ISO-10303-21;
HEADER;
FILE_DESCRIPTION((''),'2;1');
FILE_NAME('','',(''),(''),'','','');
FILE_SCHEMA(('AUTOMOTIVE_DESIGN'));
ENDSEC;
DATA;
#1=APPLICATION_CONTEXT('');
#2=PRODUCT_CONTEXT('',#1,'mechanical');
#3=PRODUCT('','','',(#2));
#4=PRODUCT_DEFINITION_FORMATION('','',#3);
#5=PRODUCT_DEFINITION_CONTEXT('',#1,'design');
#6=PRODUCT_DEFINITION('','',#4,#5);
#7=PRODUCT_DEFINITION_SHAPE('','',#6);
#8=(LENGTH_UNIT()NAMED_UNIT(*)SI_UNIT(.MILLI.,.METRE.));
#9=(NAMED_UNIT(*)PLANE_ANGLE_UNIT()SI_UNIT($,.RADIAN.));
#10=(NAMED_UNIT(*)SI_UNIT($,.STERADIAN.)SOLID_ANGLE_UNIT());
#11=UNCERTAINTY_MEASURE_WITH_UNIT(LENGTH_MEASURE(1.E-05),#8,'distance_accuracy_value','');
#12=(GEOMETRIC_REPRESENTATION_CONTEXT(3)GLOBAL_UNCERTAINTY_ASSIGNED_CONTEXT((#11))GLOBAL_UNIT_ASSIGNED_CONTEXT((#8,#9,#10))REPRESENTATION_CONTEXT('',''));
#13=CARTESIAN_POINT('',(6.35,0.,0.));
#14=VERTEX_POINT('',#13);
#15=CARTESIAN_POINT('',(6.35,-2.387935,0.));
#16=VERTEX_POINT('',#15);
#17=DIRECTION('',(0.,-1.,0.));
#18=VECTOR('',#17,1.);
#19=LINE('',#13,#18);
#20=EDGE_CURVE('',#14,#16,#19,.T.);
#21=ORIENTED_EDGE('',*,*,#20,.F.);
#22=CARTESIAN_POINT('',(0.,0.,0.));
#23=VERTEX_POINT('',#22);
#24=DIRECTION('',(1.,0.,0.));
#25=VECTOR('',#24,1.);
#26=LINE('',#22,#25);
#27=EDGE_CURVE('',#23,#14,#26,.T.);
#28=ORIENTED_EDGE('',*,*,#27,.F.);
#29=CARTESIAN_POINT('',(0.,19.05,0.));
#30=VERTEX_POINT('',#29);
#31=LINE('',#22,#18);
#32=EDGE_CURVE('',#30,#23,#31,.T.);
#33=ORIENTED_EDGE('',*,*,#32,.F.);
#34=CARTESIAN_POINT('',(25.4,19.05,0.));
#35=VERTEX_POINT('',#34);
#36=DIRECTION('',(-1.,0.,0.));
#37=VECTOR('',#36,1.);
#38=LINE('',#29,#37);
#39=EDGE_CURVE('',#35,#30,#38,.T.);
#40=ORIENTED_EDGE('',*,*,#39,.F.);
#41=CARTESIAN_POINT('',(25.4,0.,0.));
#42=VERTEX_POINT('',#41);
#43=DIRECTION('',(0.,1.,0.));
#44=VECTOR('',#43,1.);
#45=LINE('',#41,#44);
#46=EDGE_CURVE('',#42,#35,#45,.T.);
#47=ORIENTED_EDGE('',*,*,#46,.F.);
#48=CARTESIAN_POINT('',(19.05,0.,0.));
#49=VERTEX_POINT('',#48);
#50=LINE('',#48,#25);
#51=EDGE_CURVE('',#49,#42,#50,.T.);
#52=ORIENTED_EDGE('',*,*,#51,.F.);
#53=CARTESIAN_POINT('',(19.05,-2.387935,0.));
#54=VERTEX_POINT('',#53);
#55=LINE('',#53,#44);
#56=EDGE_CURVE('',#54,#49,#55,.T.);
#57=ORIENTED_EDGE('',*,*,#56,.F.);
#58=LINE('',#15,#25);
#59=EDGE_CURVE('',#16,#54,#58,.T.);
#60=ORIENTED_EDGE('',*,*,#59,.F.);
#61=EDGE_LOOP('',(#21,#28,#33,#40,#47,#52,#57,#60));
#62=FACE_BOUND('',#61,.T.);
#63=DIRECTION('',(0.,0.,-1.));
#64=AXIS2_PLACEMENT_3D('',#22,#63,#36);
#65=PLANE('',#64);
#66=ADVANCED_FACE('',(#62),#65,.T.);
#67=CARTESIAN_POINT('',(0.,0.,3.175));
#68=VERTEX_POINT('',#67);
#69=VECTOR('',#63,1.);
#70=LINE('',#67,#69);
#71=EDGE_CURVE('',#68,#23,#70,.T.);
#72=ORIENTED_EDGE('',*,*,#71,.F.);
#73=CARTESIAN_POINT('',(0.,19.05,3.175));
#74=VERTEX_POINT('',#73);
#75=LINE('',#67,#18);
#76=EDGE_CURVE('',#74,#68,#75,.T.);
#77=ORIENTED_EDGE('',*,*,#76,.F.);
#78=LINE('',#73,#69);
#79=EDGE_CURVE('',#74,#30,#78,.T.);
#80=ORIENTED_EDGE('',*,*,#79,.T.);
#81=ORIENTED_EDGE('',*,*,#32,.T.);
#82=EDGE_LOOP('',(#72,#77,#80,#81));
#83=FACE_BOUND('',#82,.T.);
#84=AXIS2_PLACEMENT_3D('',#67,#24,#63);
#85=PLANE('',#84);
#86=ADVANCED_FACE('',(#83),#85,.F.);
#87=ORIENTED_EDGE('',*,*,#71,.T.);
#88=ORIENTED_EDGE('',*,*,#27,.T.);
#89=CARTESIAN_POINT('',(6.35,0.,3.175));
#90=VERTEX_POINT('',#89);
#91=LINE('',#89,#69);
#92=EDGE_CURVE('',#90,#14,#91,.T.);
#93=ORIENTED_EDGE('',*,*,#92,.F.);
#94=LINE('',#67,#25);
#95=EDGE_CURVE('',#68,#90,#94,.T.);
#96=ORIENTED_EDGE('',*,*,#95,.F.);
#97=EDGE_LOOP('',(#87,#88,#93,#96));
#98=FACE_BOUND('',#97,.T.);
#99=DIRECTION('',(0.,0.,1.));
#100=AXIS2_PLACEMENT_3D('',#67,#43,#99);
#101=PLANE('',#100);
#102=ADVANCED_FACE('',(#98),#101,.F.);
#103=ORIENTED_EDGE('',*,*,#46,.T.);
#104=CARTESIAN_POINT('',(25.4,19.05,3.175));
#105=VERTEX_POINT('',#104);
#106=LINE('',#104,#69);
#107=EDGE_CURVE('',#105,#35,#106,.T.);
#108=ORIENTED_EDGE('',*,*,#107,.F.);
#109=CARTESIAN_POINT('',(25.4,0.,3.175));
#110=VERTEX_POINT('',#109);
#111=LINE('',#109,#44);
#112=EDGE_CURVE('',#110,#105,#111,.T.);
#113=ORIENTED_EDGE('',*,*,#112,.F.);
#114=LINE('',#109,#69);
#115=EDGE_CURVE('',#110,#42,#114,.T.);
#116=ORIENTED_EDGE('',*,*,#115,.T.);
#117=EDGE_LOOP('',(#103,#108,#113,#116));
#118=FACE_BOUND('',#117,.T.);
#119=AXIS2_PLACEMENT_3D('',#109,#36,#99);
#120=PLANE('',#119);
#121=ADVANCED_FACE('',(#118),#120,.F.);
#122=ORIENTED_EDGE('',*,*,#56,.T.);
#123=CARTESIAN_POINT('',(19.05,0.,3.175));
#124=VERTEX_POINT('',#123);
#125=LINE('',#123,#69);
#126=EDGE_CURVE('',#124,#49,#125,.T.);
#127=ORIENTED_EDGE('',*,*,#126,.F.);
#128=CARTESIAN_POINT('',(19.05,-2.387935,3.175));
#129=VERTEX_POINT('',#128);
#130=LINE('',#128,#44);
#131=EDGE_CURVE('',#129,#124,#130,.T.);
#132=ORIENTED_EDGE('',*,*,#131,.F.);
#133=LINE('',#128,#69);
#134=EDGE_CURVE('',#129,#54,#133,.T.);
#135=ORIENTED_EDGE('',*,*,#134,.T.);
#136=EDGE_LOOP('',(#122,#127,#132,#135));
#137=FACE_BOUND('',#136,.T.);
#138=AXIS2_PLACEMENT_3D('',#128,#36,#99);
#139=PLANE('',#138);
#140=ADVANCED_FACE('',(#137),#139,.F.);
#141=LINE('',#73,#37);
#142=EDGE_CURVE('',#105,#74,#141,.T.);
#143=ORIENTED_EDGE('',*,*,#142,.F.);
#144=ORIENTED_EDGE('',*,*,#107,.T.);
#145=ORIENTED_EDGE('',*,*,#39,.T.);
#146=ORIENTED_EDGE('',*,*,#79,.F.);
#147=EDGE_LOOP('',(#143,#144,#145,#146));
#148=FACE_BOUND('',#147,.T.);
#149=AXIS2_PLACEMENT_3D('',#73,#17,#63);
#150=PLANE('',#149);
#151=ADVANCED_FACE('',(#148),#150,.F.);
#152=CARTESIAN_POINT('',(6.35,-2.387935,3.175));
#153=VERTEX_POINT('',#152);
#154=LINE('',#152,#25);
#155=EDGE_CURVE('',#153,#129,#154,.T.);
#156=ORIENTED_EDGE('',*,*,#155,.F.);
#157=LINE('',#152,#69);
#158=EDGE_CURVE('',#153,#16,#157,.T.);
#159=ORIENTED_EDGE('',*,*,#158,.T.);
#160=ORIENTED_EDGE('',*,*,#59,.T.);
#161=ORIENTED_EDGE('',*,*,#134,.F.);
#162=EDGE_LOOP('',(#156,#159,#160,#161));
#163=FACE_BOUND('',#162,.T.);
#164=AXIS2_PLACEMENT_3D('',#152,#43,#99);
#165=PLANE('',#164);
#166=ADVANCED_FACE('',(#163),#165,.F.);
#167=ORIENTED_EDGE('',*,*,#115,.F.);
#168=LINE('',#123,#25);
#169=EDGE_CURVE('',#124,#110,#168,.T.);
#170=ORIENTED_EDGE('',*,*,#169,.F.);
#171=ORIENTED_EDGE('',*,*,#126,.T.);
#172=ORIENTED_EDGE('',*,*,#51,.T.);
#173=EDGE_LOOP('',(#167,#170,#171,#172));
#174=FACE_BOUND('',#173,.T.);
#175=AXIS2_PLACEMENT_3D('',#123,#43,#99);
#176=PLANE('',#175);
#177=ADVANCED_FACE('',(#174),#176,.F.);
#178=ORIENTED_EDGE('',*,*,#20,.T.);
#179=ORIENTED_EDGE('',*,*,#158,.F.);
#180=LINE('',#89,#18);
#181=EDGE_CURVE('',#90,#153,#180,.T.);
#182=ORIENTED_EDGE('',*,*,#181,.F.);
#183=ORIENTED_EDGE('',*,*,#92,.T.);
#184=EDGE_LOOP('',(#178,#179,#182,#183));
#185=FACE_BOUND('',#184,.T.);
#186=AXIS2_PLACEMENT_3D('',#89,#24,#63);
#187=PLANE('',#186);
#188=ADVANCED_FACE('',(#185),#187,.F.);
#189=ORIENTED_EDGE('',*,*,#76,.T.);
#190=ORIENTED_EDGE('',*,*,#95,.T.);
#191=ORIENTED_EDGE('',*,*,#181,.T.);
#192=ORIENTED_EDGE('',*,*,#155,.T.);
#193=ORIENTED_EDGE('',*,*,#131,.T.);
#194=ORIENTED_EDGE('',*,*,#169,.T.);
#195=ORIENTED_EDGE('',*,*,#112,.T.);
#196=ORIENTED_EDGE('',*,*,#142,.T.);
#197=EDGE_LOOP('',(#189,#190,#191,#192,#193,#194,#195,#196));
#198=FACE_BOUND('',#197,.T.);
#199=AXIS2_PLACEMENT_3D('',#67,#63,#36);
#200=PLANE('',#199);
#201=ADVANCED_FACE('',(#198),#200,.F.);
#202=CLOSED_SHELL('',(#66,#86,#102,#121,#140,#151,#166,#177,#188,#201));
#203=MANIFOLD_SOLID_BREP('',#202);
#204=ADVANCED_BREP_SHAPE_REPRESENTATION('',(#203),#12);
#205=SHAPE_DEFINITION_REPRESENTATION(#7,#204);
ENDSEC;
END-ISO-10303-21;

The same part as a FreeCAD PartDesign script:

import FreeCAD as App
import Part
import Sketcher

V = App.Vector
Q = App.Units.Quantity

doc = App.newDocument("Part")
body = doc.addObject("PartDesign::Body", "Body")

# Sketch on XY plane
sketch1 = doc.addObject("Sketcher::SketchObject", "Sketch")
body.addObject(sketch1)
sketch1.AttachmentSupport = (doc.XY_Plane, [""])
sketch1.MapMode = "FlatFace"
sketch1.addGeometry([
    Part.LineSegment(V(6.3, 0, 0), V(6.3, -2.4, 0)),  # 0
    Part.LineSegment(V(6.3, -2.4, 0), V(19.1, -2.4, 0)),  # 1
    Part.LineSegment(V(19.1, -2.4, 0), V(19.1, 0, 0)),  # 2
    Part.LineSegment(V(19.1, 0, 0), V(25.4, 0, 0)),  # 3
    Part.LineSegment(V(25.4, 0, 0), V(25.4, 19.1, 0)),  # 4
    Part.LineSegment(V(25.4, 19.1, 0), V(0, 19.1, 0)),  # 5
    Part.LineSegment(V(0, 19.1, 0), V(0, 0, 0)),  # 6
    Part.LineSegment(V(0, 0, 0), V(6.3, 0, 0)),  # 7
], False)
sketch1.addConstraint([
    Sketcher.Constraint("Coincident", 0, 2, 1, 1),
    Sketcher.Constraint("Coincident", 1, 2, 2, 1),
    Sketcher.Constraint("Coincident", 2, 2, 3, 1),
    Sketcher.Constraint("Coincident", 3, 2, 4, 1),
    Sketcher.Constraint("Coincident", 4, 2, 5, 1),
    Sketcher.Constraint("Coincident", 5, 2, 6, 1),
    Sketcher.Constraint("Coincident", 6, 2, 7, 1),
    Sketcher.Constraint("Coincident", 7, 2, 0, 1),
    Sketcher.Constraint("Vertical", 0),
    Sketcher.Constraint("Horizontal", 1),
    Sketcher.Constraint("Vertical", 2),
    Sketcher.Constraint("Horizontal", 3),
    Sketcher.Constraint("Vertical", 4),
    Sketcher.Constraint("Horizontal", 5),
    Sketcher.Constraint("Vertical", 6),
    Sketcher.Constraint("Horizontal", 7),
    Sketcher.Constraint("Coincident", 6, 2, -1, 1),
    Sketcher.Constraint("PointOnObject", 2, 2, -1),
    Sketcher.Constraint("Equal", 3, 7),
    Sketcher.Constraint("DistanceX", 5, 2, 5, 1, Q("1 in")),
    Sketcher.Constraint("DistanceX", 1, 1, 1, 2, Q("0.5 in")),
    Sketcher.Constraint("DistanceY", 4, 1, 4, 2, Q("0.75 in")),
    Sketcher.Constraint("DistanceY", 0, 2, 0, 1, Q("2.387935 mm")),
])
pad1 = doc.addObject("PartDesign::Pad", "Pad")
body.addObject(pad1)
pad1.Profile = sketch1
pad1.Length = Q("0.125 in")

doc.recompute()
